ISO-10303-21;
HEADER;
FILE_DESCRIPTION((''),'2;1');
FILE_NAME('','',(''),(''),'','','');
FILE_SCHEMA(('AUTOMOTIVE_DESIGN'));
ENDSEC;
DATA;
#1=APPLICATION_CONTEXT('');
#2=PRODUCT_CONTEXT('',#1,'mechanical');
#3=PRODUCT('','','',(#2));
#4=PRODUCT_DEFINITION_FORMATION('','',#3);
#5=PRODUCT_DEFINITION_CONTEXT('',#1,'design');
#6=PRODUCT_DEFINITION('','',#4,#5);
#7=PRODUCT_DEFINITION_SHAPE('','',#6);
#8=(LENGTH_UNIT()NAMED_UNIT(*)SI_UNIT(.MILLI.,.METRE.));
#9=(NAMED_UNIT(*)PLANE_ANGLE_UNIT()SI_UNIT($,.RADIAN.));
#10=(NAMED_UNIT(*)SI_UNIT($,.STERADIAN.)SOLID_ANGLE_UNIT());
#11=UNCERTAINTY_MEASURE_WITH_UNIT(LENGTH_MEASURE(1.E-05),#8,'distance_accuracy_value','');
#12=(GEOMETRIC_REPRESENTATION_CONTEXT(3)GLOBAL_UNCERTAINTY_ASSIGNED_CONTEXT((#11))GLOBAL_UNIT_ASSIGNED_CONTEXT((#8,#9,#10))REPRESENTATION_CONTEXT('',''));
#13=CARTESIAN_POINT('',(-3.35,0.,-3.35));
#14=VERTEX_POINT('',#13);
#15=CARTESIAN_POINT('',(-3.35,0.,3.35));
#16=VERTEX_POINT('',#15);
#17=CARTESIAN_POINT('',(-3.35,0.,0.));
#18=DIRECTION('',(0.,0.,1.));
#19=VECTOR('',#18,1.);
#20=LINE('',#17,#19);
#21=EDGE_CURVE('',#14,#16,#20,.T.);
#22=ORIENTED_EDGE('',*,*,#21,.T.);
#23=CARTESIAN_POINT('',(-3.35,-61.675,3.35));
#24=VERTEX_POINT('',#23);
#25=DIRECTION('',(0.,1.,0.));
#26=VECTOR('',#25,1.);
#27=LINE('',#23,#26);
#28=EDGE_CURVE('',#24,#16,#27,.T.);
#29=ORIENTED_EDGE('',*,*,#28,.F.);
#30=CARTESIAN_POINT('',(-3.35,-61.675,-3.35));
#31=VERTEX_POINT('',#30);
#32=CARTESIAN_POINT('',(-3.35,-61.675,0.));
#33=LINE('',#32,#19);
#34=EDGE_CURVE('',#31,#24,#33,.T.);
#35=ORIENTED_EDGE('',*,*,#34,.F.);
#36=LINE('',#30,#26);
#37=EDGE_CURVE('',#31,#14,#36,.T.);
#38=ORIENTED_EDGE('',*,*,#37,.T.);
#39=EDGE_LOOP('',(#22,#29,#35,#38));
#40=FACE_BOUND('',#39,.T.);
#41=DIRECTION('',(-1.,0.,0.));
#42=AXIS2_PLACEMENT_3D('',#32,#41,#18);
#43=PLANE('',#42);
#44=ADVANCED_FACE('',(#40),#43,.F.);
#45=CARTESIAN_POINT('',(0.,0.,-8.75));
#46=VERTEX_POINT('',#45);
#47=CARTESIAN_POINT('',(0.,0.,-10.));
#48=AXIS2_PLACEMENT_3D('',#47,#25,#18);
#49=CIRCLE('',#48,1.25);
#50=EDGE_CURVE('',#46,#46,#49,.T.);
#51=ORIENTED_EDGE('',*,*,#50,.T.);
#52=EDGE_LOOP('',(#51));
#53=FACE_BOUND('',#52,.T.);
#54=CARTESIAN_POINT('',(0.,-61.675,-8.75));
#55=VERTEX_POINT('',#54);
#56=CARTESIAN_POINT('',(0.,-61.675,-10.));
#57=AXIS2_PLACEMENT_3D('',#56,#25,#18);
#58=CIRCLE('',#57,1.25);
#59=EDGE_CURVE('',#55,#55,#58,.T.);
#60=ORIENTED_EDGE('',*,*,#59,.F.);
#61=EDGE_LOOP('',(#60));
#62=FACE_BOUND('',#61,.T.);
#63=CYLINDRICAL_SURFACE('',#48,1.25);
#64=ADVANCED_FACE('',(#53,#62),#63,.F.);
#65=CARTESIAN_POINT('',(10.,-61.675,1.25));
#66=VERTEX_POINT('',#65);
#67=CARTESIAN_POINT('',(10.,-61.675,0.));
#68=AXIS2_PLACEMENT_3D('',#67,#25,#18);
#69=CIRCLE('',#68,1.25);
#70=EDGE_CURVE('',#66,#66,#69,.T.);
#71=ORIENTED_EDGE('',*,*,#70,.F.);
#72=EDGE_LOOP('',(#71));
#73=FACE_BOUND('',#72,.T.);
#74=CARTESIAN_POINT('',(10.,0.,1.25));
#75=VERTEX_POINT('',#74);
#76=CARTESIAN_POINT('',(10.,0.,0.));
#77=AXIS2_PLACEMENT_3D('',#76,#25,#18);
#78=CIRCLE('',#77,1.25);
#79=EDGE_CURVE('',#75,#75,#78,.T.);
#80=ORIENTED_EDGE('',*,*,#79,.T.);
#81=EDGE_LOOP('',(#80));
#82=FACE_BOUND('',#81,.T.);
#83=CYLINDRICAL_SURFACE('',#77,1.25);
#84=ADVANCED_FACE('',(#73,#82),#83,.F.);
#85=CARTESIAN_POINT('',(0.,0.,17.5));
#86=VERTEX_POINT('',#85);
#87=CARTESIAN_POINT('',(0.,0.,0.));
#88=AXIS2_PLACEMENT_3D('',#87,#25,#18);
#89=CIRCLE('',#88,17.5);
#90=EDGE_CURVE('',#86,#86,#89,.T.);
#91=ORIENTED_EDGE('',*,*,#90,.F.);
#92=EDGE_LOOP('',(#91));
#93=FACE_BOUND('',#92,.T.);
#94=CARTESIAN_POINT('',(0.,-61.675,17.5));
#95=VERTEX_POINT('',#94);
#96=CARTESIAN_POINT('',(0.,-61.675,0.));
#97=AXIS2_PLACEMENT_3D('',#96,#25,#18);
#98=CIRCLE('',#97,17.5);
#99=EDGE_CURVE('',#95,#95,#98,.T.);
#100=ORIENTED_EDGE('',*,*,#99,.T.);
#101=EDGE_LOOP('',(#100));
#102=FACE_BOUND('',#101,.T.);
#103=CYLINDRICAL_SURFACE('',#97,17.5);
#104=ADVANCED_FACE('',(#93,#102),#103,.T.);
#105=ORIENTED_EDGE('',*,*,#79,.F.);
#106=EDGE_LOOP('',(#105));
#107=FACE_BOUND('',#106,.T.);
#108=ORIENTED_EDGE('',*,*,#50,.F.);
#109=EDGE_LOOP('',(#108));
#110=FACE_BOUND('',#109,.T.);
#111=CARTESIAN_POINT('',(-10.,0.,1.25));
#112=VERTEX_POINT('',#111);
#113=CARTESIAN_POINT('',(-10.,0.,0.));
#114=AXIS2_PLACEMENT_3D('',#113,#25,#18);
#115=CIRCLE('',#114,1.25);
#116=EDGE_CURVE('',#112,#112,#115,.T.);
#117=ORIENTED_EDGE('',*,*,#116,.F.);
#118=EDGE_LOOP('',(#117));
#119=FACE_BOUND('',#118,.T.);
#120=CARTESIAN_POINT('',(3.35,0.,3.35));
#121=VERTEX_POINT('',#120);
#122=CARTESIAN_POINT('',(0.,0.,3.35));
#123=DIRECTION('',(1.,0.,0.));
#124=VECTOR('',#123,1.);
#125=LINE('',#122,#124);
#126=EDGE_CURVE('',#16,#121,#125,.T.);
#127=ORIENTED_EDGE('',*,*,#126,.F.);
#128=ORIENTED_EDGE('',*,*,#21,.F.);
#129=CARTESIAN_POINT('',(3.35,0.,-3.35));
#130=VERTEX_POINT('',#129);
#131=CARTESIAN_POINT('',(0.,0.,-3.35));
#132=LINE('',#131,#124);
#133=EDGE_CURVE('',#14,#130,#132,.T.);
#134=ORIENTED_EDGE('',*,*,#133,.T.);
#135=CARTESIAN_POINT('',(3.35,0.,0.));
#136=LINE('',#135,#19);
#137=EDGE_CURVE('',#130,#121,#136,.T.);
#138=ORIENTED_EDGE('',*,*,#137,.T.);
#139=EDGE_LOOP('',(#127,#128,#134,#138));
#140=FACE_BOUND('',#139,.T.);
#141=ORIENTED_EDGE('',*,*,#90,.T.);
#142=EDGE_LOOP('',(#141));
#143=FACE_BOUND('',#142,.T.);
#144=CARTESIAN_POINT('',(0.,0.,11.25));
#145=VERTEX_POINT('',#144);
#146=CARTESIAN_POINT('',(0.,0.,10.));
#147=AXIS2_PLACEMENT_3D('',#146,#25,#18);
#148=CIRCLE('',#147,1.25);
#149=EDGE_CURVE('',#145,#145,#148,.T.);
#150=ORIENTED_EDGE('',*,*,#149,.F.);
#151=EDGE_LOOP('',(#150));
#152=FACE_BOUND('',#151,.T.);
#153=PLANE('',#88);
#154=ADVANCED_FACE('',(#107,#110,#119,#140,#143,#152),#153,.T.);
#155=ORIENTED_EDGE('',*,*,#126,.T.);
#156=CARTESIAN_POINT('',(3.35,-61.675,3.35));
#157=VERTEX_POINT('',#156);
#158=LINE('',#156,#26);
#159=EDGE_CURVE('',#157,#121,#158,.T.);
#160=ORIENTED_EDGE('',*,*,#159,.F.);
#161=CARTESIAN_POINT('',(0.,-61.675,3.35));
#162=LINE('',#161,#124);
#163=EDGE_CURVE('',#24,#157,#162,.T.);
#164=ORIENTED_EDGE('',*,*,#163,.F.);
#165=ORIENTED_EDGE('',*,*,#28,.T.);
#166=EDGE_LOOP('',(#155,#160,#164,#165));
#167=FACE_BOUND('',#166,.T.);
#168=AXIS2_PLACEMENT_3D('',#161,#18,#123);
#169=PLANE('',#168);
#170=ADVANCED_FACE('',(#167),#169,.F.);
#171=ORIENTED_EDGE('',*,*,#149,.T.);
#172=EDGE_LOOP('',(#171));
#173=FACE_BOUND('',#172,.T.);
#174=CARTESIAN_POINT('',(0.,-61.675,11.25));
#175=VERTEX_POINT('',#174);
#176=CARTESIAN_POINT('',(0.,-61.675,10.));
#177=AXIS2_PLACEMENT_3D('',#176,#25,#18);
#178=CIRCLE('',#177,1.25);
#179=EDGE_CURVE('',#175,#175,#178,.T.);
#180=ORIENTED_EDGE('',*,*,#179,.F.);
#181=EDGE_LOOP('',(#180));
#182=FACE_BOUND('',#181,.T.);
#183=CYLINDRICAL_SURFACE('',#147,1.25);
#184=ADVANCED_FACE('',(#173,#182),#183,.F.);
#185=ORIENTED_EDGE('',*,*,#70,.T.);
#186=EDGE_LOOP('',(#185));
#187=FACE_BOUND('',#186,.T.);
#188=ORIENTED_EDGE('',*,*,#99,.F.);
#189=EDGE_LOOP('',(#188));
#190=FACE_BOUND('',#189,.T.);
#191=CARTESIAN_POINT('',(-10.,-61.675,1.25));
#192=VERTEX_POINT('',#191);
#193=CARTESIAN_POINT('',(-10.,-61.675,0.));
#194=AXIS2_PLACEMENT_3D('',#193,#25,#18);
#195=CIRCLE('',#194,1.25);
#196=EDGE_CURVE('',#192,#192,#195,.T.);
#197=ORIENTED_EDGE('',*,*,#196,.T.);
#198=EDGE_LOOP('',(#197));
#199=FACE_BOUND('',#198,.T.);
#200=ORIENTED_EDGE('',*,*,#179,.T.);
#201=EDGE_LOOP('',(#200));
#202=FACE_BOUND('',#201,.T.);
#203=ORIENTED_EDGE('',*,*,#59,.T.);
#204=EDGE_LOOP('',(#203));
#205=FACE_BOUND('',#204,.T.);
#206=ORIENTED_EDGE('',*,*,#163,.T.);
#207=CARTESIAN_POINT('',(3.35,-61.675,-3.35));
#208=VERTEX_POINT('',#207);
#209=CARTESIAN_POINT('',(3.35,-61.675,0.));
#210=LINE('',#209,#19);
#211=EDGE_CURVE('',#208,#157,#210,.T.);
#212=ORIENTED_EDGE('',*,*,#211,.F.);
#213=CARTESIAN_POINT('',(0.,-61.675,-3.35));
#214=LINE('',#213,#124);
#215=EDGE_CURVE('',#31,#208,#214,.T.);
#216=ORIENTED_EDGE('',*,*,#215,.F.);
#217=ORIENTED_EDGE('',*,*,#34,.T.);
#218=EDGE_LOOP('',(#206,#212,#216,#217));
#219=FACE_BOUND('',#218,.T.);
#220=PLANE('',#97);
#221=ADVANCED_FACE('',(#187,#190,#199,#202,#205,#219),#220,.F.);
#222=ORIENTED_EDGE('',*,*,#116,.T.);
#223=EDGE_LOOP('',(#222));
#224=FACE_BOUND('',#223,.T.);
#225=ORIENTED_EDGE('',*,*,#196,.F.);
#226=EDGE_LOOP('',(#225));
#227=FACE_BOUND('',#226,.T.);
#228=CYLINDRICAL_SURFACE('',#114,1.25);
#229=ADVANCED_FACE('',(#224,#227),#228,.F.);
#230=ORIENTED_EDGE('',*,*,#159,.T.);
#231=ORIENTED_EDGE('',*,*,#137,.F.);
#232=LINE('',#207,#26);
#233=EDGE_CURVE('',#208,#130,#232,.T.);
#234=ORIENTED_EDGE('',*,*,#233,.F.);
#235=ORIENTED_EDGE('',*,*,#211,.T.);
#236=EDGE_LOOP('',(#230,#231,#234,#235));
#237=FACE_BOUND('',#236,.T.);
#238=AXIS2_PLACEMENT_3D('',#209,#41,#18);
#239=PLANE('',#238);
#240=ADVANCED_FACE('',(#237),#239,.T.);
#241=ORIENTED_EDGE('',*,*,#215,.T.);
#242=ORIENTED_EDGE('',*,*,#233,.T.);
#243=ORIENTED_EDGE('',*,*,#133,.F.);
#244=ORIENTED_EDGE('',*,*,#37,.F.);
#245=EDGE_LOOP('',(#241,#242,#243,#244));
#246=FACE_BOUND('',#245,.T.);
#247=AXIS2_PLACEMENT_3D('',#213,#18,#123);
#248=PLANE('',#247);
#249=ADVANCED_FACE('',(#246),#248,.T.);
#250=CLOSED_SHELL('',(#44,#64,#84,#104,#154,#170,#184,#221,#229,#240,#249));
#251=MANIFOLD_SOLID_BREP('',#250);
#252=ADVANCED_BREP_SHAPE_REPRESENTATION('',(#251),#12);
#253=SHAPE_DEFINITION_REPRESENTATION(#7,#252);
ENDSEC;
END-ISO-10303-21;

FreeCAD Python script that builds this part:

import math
import FreeCAD as App
import Part
import Sketcher

V = App.Vector
Q = App.Units.Quantity

doc = App.newDocument("Part")
body = doc.addObject("PartDesign::Body", "Body")

# Sketch on XZ plane
sketch1 = body.newObject("Sketcher::SketchObject", "Sketch")
sketch1.AttachmentSupport = (doc.getObject("XZ_Plane"), [""])
sketch1.MapMode = "FlatFace"
sketch1.addGeometry([
    Part.ArcOfCircle(Part.Circle(V(0, 0, 0), V(0, 0, 1), 17), math.radians(0), math.radians(90)),  # 0
    Part.ArcOfCircle(Part.Circle(V(0, 0, 0), V(0, 0, 1), 18), math.radians(90), math.radians(360)),  # 1
    Part.LineSegment(V(-3, 3, 0), V(-3, -3, 0)),  # 2
    Part.LineSegment(V(-3, -3, 0), V(3, -3, 0)),  # 3
    Part.LineSegment(V(3, -3, 0), V(3, 3, 0)),  # 4
    Part.LineSegment(V(3, 3, 0), V(-3, 3, 0)),  # 5
], False)
sketch1.addConstraint([
    Sketcher.Constraint("Tangent", 0, 1, 1, 2),
    Sketcher.Constraint("Coincident", 1, 1, 0, 2),
    Sketcher.Constraint("Coincident", 2, 2, 3, 1),
    Sketcher.Constraint("Coincident", 3, 2, 4, 1),
    Sketcher.Constraint("Coincident", 4, 2, 5, 1),
    Sketcher.Constraint("Coincident", 5, 2, 2, 1),
    Sketcher.Constraint("Vertical", 2),
    Sketcher.Constraint("Horizontal", 3),
    Sketcher.Constraint("Vertical", 4),
    Sketcher.Constraint("Horizontal", 5),
    Sketcher.Constraint("Coincident", 0, 3, -1, 1),
    Sketcher.Constraint("Symmetric", 2, 2, 4, 2, -1, 1),
    Sketcher.Constraint("PointOnObject", 0, 1, -1),
    Sketcher.Constraint("PointOnObject", 1, 1, -2),
    Sketcher.Constraint("Equal", 5, 2),
    Sketcher.Constraint("Radius", 0, Q("17.5 mm")),
    Sketcher.Constraint("DistanceX", 3, 1, 3, 2, Q("6.7 mm")),
])
pad1 = body.newObject("PartDesign::Pad", "Pad")
pad1.Profile = sketch1
pad1.Length = 61.675

# Sketch on XZ plane
sketch2 = body.newObject("Sketcher::SketchObject", "Sketch001")
sketch2.AttachmentSupport = (doc.getObject("XZ_Plane"), [""])
sketch2.MapMode = "FlatFace"
sketch2.addGeometry([
    Part.Circle(V(0, -10, 0), V(0, 0, 1), 1.2),
    Part.Circle(V(10, 0, 0), V(0, 0, 1), 1.2),
    Part.Circle(V(-10, 0, 0), V(0, 0, 1), 1.2),
    Part.Circle(V(0, 10, 0), V(0, 0, 1), 1.2),
], False)
sketch2.addConstraint([
    Sketcher.Constraint("Equal", 0, 1),
    Sketcher.Constraint("Equal", 1, 2),
    Sketcher.Constraint("Equal", 2, 3),
    Sketcher.Constraint("Symmetric", 1, 3, 2, 3, -1, 1),
    Sketcher.Constraint("Symmetric", 0, 3, 3, 3, -1, 1),
    Sketcher.Constraint("PointOnObject", 0, 3, -2),
    Sketcher.Constraint("PointOnObject", 1, 3, -1),
    Sketcher.Constraint("Diameter", 0, Q("2.5 mm")),
    Sketcher.Constraint("DistanceY", 0, 3, -1, 1, Q("10 mm")),
    Sketcher.Constraint("DistanceX", -1, 1, 1, 3, Q("10 mm")),
])
doc.recompute()
hole = body.newObject("PartDesign::Hole", "Hole")
hole.Profile = sketch2
hole.ThreadType = "None"
hole.Diameter = 2.5
hole.DepthType = "ThroughAll"
hole.Reversed = True

doc.recompute()
